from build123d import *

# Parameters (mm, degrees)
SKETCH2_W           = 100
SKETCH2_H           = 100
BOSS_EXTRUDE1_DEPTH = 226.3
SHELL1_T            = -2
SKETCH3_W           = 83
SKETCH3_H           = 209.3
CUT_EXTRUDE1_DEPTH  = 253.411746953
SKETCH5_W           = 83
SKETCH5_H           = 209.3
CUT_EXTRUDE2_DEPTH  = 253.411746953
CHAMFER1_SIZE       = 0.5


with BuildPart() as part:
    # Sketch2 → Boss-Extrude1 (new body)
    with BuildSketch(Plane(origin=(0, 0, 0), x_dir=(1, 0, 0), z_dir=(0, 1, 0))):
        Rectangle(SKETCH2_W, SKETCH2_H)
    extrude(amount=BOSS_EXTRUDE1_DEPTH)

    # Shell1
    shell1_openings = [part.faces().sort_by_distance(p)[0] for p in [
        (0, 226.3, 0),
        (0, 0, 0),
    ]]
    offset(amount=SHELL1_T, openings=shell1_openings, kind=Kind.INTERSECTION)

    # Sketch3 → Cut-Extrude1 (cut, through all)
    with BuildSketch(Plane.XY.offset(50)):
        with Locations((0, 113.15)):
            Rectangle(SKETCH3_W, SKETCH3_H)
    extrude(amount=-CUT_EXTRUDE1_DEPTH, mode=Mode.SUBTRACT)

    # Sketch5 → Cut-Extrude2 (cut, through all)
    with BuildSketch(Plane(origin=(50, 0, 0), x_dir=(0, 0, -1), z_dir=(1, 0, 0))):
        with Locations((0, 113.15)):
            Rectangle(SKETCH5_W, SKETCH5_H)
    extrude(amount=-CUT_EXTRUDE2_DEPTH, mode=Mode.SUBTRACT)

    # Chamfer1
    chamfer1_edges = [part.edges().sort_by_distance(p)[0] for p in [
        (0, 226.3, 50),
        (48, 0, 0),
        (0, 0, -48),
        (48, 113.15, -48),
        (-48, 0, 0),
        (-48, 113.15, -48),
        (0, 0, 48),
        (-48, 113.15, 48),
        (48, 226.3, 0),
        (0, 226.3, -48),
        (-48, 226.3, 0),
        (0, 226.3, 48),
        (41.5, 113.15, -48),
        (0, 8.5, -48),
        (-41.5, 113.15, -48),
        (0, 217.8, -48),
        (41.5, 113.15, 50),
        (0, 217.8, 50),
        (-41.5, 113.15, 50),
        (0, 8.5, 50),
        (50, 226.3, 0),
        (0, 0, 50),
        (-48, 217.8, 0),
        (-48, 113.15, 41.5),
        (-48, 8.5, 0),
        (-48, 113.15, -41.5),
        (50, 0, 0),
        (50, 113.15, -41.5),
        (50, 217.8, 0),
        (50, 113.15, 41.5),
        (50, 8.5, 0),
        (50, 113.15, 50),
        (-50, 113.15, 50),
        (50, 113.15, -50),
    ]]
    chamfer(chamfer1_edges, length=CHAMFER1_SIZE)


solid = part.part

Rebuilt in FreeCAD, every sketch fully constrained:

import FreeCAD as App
import Part
import Sketcher

V = App.Vector
Q = App.Units.Quantity


def edges_at(feature, points):
    """Names of the edges that pass closest to the given points."""
    edges = feature.Shape.Edges
    near = lambda p: min(range(len(edges)), key=lambda i: edges[i].distToShape(Part.Vertex(*p))[0])
    return sorted({f"Edge{near(p) + 1}" for p in points})


def faces_at(feature, points):
    """Names of the faces that lie closest to the given points."""
    faces = feature.Shape.Faces
    near = lambda p: min(range(len(faces)), key=lambda i: faces[i].distToShape(Part.Vertex(*p))[0])
    return sorted({f"Face{near(p) + 1}" for p in points})

doc = App.newDocument("Part")
body = doc.addObject("PartDesign::Body", "Body")

sketch1 = body.newObject("Sketcher::SketchObject", "Sketch")
sketch1.AttachmentSupport = (doc.getObject("XZ_Plane"), [""])
sketch1.MapMode = "FlatFace"
sketch1.addGeometry([
    Part.LineSegment(V(-50, -50, 0), V(-50, 50, 0)),
    Part.LineSegment(V(-50, 50, 0), V(50, 50, 0)),
    Part.LineSegment(V(50, 50, 0), V(50, -50, 0)),
    Part.LineSegment(V(50, -50, 0), V(-50, -50, 0)),
], False)
sketch1.addConstraint([
    Sketcher.Constraint("Coincident", 0, 2, 1, 1),
    Sketcher.Constraint("Coincident", 1, 2, 2, 1),
    Sketcher.Constraint("Coincident", 2, 2, 3, 1),
    Sketcher.Constraint("Coincident", 3, 2, 0, 1),
    Sketcher.Constraint("Vertical", 0),
    Sketcher.Constraint("Horizontal", 1),
    Sketcher.Constraint("Vertical", 2),
    Sketcher.Constraint("Horizontal", 3),
    Sketcher.Constraint("Symmetric", 0, 2, 2, 2, -1, 1),
    Sketcher.Constraint("Equal", 3, 0),
    Sketcher.Constraint("DistanceX", 1, 1, 1, 2, Q("100 mm")),
])
pad1 = body.newObject("PartDesign::Pad", "Pad")
pad1.Profile = sketch1
pad1.Length = 226.3
pad1.Reversed = True
doc.recompute()

thickness = body.newObject("PartDesign::Thickness", "Thickness")
thickness.Base = (pad1, faces_at(pad1, [(0, 226.3, 0), (0, 0, 0)]))
thickness.Value = 2
thickness.Reversed = True
thickness.Join = "Intersection"

sketch2 = body.newObject("Sketcher::SketchObject", "Sketch001")
sketch2.AttachmentSupport = (doc.getObject("XY_Plane"), [""])
sketch2.MapMode = "FlatFace"
sketch2.AttachmentOffset = App.Placement(V(0, 0, 50), App.Rotation())
sketch2.addGeometry([
    Part.LineSegment(V(-41.5, 217.8, 0), V(-41.5, 8.5, 0)),
    Part.LineSegment(V(-41.5, 8.5, 0), V(41.5, 8.5, 0)),
    Part.LineSegment(V(41.5, 8.5, 0), V(41.5, 217.8, 0)),
    Part.LineSegment(V(41.5, 217.8, 0), V(-41.5, 217.8, 0)),
], False)
sketch2.addConstraint([
    Sketcher.Constraint("Coincident", 0, 2, 1, 1),
    Sketcher.Constraint("Coincident", 1, 2, 2, 1),
    Sketcher.Constraint("Coincident", 2, 2, 3, 1),
    Sketcher.Constraint("Coincident", 3, 2, 0, 1),
    Sketcher.Constraint("Vertical", 0),
    Sketcher.Constraint("Horizontal", 1),
    Sketcher.Constraint("Vertical", 2),
    Sketcher.Constraint("Horizontal", 3),
    Sketcher.Constraint("DistanceX", 1, 1, 1, 2, Q("83 mm")),
    Sketcher.Constraint("DistanceY", 0, 2, 0, 1, Q("209.3 mm")),
    Sketcher.Constraint("DistanceX", 0, 2, -1, 1, Q("41.5 mm")),
    Sketcher.Constraint("DistanceY", -1, 1, 0, 2, Q("8.5 mm")),
])
pocket1 = body.newObject("PartDesign::Pocket", "Pocket")
pocket1.Profile = sketch2
pocket1.Type = "ThroughAll"

sketch3 = body.newObject("Sketcher::SketchObject", "Sketch002")
sketch3.AttachmentSupport = (doc.getObject("YZ_Plane"), [""])
sketch3.MapMode = "FlatFace"
sketch3.AttachmentOffset = App.Placement(V(0, 0, 50), App.Rotation())
sketch3.addGeometry([
    Part.LineSegment(V(217.8, 41.5, 0), V(8.5, 41.5, 0)),
    Part.LineSegment(V(8.5, 41.5, 0), V(8.5, -41.5, 0)),
    Part.LineSegment(V(8.5, -41.5, 0), V(217.8, -41.5, 0)),
    Part.LineSegment(V(217.8, -41.5, 0), V(217.8, 41.5, 0)),
], False)
sketch3.addConstraint([
    Sketcher.Constraint("Coincident", 0, 2, 1, 1),
    Sketcher.Constraint("Coincident", 1, 2, 2, 1),
    Sketcher.Constraint("Coincident", 2, 2, 3, 1),
    Sketcher.Constraint("Coincident", 3, 2, 0, 1),
    Sketcher.Constraint("Horizontal", 0),
    Sketcher.Constraint("Vertical", 1),
    Sketcher.Constraint("Horizontal", 2),
    Sketcher.Constraint("Vertical", 3),
    Sketcher.Constraint("DistanceY", 1, 2, 1, 1, Q("83 mm")),
    Sketcher.Constraint("DistanceX", 0, 2, 0, 1, Q("209.3 mm")),
    Sketcher.Constraint("DistanceX", -1, 1, 0, 2, Q("8.5 mm")),
    Sketcher.Constraint("DistanceY", -1, 1, 0, 2, Q("41.5 mm")),
])
pocket2 = body.newObject("PartDesign::Pocket", "Pocket001")
pocket2.Profile = sketch3
pocket2.Type = "ThroughAll"
doc.recompute()

chamfer = body.newObject("PartDesign::Chamfer", "Chamfer")
chamfer.Base = (pocket2, edges_at(pocket2, [
    (0, 226.3, 50),
    (48, 0, 0),
    (0, 0, -48),
    (48, 113.15, -48),
    (-48, 0, 0),
    (-48, 113.15, -48),
    (0, 0, 48),
    (-48, 113.15, 48),
    (48, 226.3, 0),
    (0, 226.3, -48),
    (-48, 226.3, 0),
    (0, 226.3, 48),
    (41.5, 113.15, -48),
    (0, 8.5, -48),
    (-41.5, 113.15, -48),
    (0, 217.8, -48),
    (41.5, 113.15, 50),
    (0, 217.8, 50),
    (-41.5, 113.15, 50),
    (0, 8.5, 50),
    (50, 226.3, 0),
    (0, 0, 50),
    (-48, 217.8, 0),
    (-48, 113.15, 41.5),
    (-48, 8.5, 0),
    (-48, 113.15, -41.5),
    (50, 0, 0),
    (50, 113.15, -41.5),
    (50, 217.8, 0),
    (50, 113.15, 41.5),
    (50, 8.5, 0),
    (50, 113.15, 50),
    (-50, 113.15, 50),
    (50, 113.15, -50),
]))
chamfer.Size = 0.5

doc.recompute()
